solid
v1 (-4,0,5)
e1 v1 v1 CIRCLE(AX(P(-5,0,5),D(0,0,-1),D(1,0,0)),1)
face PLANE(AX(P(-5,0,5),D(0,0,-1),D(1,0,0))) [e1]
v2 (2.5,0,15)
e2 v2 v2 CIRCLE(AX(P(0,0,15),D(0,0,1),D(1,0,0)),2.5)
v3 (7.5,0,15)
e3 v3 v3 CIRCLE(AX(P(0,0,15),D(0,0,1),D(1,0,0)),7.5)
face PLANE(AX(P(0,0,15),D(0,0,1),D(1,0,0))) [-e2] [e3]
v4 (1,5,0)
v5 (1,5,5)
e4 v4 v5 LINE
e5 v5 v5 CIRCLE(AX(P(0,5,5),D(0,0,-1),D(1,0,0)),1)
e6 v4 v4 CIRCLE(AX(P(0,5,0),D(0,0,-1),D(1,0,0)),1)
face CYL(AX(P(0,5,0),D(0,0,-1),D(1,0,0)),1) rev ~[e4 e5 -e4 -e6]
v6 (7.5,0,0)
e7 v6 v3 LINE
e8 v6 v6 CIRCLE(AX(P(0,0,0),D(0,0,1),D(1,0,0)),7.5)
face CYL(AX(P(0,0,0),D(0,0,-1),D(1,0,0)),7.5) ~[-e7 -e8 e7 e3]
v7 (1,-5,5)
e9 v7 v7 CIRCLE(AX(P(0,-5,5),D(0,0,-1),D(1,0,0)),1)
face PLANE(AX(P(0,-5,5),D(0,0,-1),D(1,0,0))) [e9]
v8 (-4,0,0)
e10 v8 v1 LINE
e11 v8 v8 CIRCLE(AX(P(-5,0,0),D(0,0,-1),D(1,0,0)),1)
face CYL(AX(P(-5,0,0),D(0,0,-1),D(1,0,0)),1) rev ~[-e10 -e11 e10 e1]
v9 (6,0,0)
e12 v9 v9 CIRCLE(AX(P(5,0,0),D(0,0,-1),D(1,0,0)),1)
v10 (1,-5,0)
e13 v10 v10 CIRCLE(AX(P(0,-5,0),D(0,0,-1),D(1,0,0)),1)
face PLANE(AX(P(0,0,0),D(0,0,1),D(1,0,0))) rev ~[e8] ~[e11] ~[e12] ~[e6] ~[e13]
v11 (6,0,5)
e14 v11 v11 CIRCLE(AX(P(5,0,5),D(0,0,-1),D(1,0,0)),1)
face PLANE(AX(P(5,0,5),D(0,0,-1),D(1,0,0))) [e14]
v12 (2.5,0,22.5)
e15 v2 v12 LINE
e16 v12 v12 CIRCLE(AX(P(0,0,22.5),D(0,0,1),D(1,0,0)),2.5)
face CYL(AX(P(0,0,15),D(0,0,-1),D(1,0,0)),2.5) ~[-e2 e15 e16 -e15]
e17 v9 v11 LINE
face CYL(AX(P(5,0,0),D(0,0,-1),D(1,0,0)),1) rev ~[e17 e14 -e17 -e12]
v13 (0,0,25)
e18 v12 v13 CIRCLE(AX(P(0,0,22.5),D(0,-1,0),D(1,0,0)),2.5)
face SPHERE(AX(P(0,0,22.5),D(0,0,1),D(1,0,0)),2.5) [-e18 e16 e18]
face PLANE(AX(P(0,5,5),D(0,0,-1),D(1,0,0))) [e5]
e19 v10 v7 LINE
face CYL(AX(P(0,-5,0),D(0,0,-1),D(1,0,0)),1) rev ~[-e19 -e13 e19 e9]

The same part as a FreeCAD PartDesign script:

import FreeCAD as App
import Part
import Sketcher

V = App.Vector
Q = App.Units.Quantity


def edges_at(feature, points):
    """Names of the edges that pass closest to the given points."""
    edges = feature.Shape.Edges
    near = lambda p: min(range(len(edges)), key=lambda i: edges[i].distToShape(Part.Vertex(*p))[0])
    return sorted({f"Edge{near(p) + 1}" for p in points})

doc = App.newDocument("Part")
body = doc.addObject("PartDesign::Body", "Body")

sketch1 = body.newObject("Sketcher::SketchObject", "Sketch")
sketch1.AttachmentSupport = (doc.getObject("XY_Plane"), [""])
sketch1.MapMode = "FlatFace"
sketch1.addGeometry(Part.Circle(V(0, 0, 0), V(0, 0, 1), 7.5), False)
sketch1.addConstraint(Sketcher.Constraint("Coincident", 0, 3, -1, 1))
sketch1.addConstraint(Sketcher.Constraint("Diameter", 0, Q("15 mm")))
pad1 = body.newObject("PartDesign::Pad", "Pad")
pad1.Profile = sketch1
pad1.Length = 15

sketch2 = body.newObject("Sketcher::SketchObject", "Sketch001")
sketch2.AttachmentSupport = (doc.getObject("XY_Plane"), [""])
sketch2.MapMode = "FlatFace"
sketch2.addGeometry(Part.Circle(V(0, -5, 0), V(0, 0, 1), 1), False)
sketch2.addGeometry(Part.Circle(V(-5, 0, 0), V(0, 0, 1), 1), False)
sketch2.addGeometry(Part.Circle(V(0, 5, 0), V(0, 0, 1), 1), False)
sketch2.addGeometry(Part.Circle(V(5, 0, 0), V(0, 0, 1), 1), False)
sketch2.addConstraint(Sketcher.Constraint("Equal", 0, 1))
sketch2.addConstraint(Sketcher.Constraint("Equal", 1, 2))
sketch2.addConstraint(Sketcher.Constraint("Equal", 2, 3))
sketch2.addConstraint(Sketcher.Constraint("Symmetric", 0, 3, 2, 3, -1, 1))
sketch2.addConstraint(Sketcher.Constraint("Symmetric", 1, 3, 3, 3, -1, 1))
sketch2.addConstraint(Sketcher.Constraint("PointOnObject", 0, 3, -2))
sketch2.addConstraint(Sketcher.Constraint("PointOnObject", 1, 3, -1))
sketch2.addConstraint(Sketcher.Constraint("Diameter", 0, Q("2 mm")))
sketch2.addConstraint(Sketcher.Constraint("DistanceY", 0, 3, -1, 1, Q("5 mm")))
sketch2.addConstraint(Sketcher.Constraint("DistanceX", 1, 3, -1, 1, Q("5 mm")))
pocket1 = body.newObject("PartDesign::Pocket", "Pocket")
pocket1.Profile = sketch2
pocket1.Length = 5
pocket1.Reversed = True

sketch3 = body.newObject("Sketcher::SketchObject", "Sketch002")
sketch3.AttachmentSupport = (doc.getObject("XY_Plane"), [""])
sketch3.MapMode = "FlatFace"
sketch3.AttachmentOffset = App.Placement(V(0, 0, 15), App.Rotation())
sketch3.addGeometry(Part.Circle(V(0, 0, 0), V(0, 0, 1), 2.5), False)
sketch3.addConstraint(Sketcher.Constraint("Coincident", 0, 3, -1, 1))
sketch3.addConstraint(Sketcher.Constraint("Diameter", 0, Q("5 mm")))
pad2 = body.newObject("PartDesign::Pad", "Pad001")
pad2.Profile = sketch3
pad2.Length = 10
doc.recompute()

fillet = body.newObject("PartDesign::Fillet", "Fillet")
fillet.Base = (pad2, edges_at(pad2, [(-2.5, 0, 25)]))
fillet.Radius = 2.5

doc.recompute()
